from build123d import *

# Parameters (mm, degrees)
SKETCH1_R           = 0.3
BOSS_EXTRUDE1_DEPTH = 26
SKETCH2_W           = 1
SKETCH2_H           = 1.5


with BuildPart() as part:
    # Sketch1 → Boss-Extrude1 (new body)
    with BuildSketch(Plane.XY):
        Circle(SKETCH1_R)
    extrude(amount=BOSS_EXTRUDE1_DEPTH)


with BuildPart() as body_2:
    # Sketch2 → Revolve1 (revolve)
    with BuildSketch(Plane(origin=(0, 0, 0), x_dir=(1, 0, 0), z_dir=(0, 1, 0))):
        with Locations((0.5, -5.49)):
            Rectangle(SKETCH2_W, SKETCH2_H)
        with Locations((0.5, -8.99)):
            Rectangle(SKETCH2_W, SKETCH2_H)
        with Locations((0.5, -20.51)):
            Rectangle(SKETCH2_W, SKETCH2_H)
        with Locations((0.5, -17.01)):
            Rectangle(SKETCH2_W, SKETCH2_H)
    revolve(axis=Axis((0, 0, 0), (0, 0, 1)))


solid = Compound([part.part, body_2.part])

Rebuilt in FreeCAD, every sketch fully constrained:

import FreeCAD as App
import Part
import Sketcher
from FreeCAD import Vector
Q = App.Units.Quantity

doc = App.newDocument("Part")
body = doc.addObject("PartDesign::Body", "Body")

sketch1 = body.newObject("Sketcher::SketchObject", "Sketch")
sketch1.AttachmentSupport = (doc.getObject("XY_Plane"), [""])
sketch1.MapMode = "FlatFace"
sketch1.addGeometry(Part.Circle(Vector(0, 0, 0), Vector(0, 0, 1), 0.3), False)
sketch1.addConstraint(Sketcher.Constraint("Coincident", 0, 3, -1, 1))
sketch1.addConstraint(Sketcher.Constraint("Diameter", 0, Q("0.6 mm")))
pad1 = body.newObject("PartDesign::Pad", "Pad")
pad1.Profile = sketch1
pad1.Length = 26
body2 = doc.addObject("PartDesign::Body", "Body001")
body2.AllowCompound = True

sketch2 = body2.newObject("Sketcher::SketchObject", "Sketch001")
sketch2.AttachmentSupport = (doc.getObject("XZ_Plane001"), [""])
sketch2.MapMode = "FlatFace"
sketch2.addGeometry(Part.LineSegment(Vector(0, 4.74, 0), Vector(0, 6.24, 0)), False)
sketch2.addGeometry(Part.LineSegment(Vector(0, 6.24, 0), Vector(1, 6.24, 0)), False)
sketch2.addGeometry(Part.LineSegment(Vector(1, 6.24, 0), Vector(1, 4.74, 0)), False)
sketch2.addGeometry(Part.LineSegment(Vector(1, 4.74, 0), Vector(0, 4.74, 0)), False)
sketch2.addGeometry(Part.LineSegment(Vector(0, 8.24, 0), Vector(0, 9.74, 0)), False)
sketch2.addGeometry(Part.LineSegment(Vector(0, 9.74, 0), Vector(1, 9.74, 0)), False)
sketch2.addGeometry(Part.LineSegment(Vector(1, 9.74, 0), Vector(1, 8.24, 0)), False)
sketch2.addGeometry(Part.LineSegment(Vector(1, 8.24, 0), Vector(0, 8.24, 0)), False)
sketch2.addGeometry(Part.LineSegment(Vector(0, 19.76, 0), Vector(0, 21.26, 0)), False)
sketch2.addGeometry(Part.LineSegment(Vector(0, 21.26, 0), Vector(1, 21.26, 0)), False)
sketch2.addGeometry(Part.LineSegment(Vector(1, 21.26, 0), Vector(1, 19.76, 0)), False)
sketch2.addGeometry(Part.LineSegment(Vector(1, 19.76, 0), Vector(0, 19.76, 0)), False)
sketch2.addGeometry(Part.LineSegment(Vector(0, 16.26, 0), Vector(0, 17.76, 0)), False)
sketch2.addGeometry(Part.LineSegment(Vector(0, 17.76, 0), Vector(1, 17.76, 0)), False)
sketch2.addGeometry(Part.LineSegment(Vector(1, 17.76, 0), Vector(1, 16.26, 0)), False)
sketch2.addGeometry(Part.LineSegment(Vector(1, 16.26, 0), Vector(0, 16.26, 0)), False)
sketch2.addConstraint(Sketcher.Constraint("Coincident", 0, 2, 1, 1))
sketch2.addConstraint(Sketcher.Constraint("Coincident", 1, 2, 2, 1))
sketch2.addConstraint(Sketcher.Constraint("Coincident", 2, 2, 3, 1))
sketch2.addConstraint(Sketcher.Constraint("Coincident", 3, 2, 0, 1))
sketch2.addConstraint(Sketcher.Constraint("Coincident", 4, 2, 5, 1))
sketch2.addConstraint(Sketcher.Constraint("Coincident", 5, 2, 6, 1))
sketch2.addConstraint(Sketcher.Constraint("Coincident", 6, 2, 7, 1))
sketch2.addConstraint(Sketcher.Constraint("Coincident", 7, 2, 4, 1))
sketch2.addConstraint(Sketcher.Constraint("Coincident", 8, 2, 9, 1))
sketch2.addConstraint(Sketcher.Constraint("Coincident", 9, 2, 10, 1))
sketch2.addConstraint(Sketcher.Constraint("Coincident", 10, 2, 11, 1))
sketch2.addConstraint(Sketcher.Constraint("Coincident", 11, 2, 8, 1))
sketch2.addConstraint(Sketcher.Constraint("Coincident", 12, 2, 13, 1))
sketch2.addConstraint(Sketcher.Constraint("Coincident", 13, 2, 14, 1))
sketch2.addConstraint(Sketcher.Constraint("Coincident", 14, 2, 15, 1))
sketch2.addConstraint(Sketcher.Constraint("Coincident", 15, 2, 12, 1))
sketch2.addConstraint(Sketcher.Constraint("Vertical", 0))
sketch2.addConstraint(Sketcher.Constraint("Horizontal", 1))
sketch2.addConstraint(Sketcher.Constraint("Vertical", 2))
sketch2.addConstraint(Sketcher.Constraint("Horizontal", 3))
sketch2.addConstraint(Sketcher.Constraint("Vertical", 4))
sketch2.addConstraint(Sketcher.Constraint("Horizontal", 5))
sketch2.addConstraint(Sketcher.Constraint("Vertical", 6))
sketch2.addConstraint(Sketcher.Constraint("Horizontal", 7))
sketch2.addConstraint(Sketcher.Constraint("Vertical", 8))
sketch2.addConstraint(Sketcher.Constraint("Horizontal", 9))
sketch2.addConstraint(Sketcher.Constraint("Vertical", 10))
sketch2.addConstraint(Sketcher.Constraint("Horizontal", 11))
sketch2.addConstraint(Sketcher.Constraint("Vertical", 12))
sketch2.addConstraint(Sketcher.Constraint("Horizontal", 13))
sketch2.addConstraint(Sketcher.Constraint("Vertical", 14))
sketch2.addConstraint(Sketcher.Constraint("Horizontal", 15))
sketch2.addConstraint(Sketcher.Constraint("PointOnObject", 0, 2, -2))
sketch2.addConstraint(Sketcher.Constraint("PointOnObject", 4, 2, -2))
sketch2.addConstraint(Sketcher.Constraint("PointOnObject", 8, 2, -2))
sketch2.addConstraint(Sketcher.Constraint("PointOnObject", 12, 2, -2))
sketch2.addConstraint(Sketcher.Constraint("Vertical", 2, 2, 5, 2))
sketch2.addConstraint(Sketcher.Constraint("Vertical", 6, 2, 9, 2))
sketch2.addConstraint(Sketcher.Constraint("Vertical", 10, 2, 13, 2))
sketch2.addConstraint(Sketcher.Constraint("Equal", 2, 4))
sketch2.addConstraint(Sketcher.Constraint("Equal", 6, 8))
sketch2.addConstraint(Sketcher.Constraint("Equal", 10, 12))
sketch2.addConstraint(Sketcher.Constraint("DistanceX", 1, 1, 1, 2, Q("1 mm")))
sketch2.addConstraint(Sketcher.Constraint("DistanceY", 0, 1, 0, 2, Q("1.5 mm")))
sketch2.addConstraint(Sketcher.Constraint("DistanceY", 3, 2, 4, 2, Q("5 mm")))
sketch2.addConstraint(Sketcher.Constraint("DistanceY", 12, 2, 11, 2, Q("2 mm")))
sketch2.addConstraint(Sketcher.Constraint("DistanceY", -1, 1, 0, 2, Q("6.24 mm")))
sketch2.addConstraint(Sketcher.Constraint("DistanceY", -1, 1, 8, 2, Q("21.26 mm")))
revolution = body2.newObject("PartDesign::Revolution", "Revolution")
revolution.Profile = sketch2
revolution.ReferenceAxis = (sketch2, ["V_Axis"])
revolution.Angle = 360

doc.recompute()
